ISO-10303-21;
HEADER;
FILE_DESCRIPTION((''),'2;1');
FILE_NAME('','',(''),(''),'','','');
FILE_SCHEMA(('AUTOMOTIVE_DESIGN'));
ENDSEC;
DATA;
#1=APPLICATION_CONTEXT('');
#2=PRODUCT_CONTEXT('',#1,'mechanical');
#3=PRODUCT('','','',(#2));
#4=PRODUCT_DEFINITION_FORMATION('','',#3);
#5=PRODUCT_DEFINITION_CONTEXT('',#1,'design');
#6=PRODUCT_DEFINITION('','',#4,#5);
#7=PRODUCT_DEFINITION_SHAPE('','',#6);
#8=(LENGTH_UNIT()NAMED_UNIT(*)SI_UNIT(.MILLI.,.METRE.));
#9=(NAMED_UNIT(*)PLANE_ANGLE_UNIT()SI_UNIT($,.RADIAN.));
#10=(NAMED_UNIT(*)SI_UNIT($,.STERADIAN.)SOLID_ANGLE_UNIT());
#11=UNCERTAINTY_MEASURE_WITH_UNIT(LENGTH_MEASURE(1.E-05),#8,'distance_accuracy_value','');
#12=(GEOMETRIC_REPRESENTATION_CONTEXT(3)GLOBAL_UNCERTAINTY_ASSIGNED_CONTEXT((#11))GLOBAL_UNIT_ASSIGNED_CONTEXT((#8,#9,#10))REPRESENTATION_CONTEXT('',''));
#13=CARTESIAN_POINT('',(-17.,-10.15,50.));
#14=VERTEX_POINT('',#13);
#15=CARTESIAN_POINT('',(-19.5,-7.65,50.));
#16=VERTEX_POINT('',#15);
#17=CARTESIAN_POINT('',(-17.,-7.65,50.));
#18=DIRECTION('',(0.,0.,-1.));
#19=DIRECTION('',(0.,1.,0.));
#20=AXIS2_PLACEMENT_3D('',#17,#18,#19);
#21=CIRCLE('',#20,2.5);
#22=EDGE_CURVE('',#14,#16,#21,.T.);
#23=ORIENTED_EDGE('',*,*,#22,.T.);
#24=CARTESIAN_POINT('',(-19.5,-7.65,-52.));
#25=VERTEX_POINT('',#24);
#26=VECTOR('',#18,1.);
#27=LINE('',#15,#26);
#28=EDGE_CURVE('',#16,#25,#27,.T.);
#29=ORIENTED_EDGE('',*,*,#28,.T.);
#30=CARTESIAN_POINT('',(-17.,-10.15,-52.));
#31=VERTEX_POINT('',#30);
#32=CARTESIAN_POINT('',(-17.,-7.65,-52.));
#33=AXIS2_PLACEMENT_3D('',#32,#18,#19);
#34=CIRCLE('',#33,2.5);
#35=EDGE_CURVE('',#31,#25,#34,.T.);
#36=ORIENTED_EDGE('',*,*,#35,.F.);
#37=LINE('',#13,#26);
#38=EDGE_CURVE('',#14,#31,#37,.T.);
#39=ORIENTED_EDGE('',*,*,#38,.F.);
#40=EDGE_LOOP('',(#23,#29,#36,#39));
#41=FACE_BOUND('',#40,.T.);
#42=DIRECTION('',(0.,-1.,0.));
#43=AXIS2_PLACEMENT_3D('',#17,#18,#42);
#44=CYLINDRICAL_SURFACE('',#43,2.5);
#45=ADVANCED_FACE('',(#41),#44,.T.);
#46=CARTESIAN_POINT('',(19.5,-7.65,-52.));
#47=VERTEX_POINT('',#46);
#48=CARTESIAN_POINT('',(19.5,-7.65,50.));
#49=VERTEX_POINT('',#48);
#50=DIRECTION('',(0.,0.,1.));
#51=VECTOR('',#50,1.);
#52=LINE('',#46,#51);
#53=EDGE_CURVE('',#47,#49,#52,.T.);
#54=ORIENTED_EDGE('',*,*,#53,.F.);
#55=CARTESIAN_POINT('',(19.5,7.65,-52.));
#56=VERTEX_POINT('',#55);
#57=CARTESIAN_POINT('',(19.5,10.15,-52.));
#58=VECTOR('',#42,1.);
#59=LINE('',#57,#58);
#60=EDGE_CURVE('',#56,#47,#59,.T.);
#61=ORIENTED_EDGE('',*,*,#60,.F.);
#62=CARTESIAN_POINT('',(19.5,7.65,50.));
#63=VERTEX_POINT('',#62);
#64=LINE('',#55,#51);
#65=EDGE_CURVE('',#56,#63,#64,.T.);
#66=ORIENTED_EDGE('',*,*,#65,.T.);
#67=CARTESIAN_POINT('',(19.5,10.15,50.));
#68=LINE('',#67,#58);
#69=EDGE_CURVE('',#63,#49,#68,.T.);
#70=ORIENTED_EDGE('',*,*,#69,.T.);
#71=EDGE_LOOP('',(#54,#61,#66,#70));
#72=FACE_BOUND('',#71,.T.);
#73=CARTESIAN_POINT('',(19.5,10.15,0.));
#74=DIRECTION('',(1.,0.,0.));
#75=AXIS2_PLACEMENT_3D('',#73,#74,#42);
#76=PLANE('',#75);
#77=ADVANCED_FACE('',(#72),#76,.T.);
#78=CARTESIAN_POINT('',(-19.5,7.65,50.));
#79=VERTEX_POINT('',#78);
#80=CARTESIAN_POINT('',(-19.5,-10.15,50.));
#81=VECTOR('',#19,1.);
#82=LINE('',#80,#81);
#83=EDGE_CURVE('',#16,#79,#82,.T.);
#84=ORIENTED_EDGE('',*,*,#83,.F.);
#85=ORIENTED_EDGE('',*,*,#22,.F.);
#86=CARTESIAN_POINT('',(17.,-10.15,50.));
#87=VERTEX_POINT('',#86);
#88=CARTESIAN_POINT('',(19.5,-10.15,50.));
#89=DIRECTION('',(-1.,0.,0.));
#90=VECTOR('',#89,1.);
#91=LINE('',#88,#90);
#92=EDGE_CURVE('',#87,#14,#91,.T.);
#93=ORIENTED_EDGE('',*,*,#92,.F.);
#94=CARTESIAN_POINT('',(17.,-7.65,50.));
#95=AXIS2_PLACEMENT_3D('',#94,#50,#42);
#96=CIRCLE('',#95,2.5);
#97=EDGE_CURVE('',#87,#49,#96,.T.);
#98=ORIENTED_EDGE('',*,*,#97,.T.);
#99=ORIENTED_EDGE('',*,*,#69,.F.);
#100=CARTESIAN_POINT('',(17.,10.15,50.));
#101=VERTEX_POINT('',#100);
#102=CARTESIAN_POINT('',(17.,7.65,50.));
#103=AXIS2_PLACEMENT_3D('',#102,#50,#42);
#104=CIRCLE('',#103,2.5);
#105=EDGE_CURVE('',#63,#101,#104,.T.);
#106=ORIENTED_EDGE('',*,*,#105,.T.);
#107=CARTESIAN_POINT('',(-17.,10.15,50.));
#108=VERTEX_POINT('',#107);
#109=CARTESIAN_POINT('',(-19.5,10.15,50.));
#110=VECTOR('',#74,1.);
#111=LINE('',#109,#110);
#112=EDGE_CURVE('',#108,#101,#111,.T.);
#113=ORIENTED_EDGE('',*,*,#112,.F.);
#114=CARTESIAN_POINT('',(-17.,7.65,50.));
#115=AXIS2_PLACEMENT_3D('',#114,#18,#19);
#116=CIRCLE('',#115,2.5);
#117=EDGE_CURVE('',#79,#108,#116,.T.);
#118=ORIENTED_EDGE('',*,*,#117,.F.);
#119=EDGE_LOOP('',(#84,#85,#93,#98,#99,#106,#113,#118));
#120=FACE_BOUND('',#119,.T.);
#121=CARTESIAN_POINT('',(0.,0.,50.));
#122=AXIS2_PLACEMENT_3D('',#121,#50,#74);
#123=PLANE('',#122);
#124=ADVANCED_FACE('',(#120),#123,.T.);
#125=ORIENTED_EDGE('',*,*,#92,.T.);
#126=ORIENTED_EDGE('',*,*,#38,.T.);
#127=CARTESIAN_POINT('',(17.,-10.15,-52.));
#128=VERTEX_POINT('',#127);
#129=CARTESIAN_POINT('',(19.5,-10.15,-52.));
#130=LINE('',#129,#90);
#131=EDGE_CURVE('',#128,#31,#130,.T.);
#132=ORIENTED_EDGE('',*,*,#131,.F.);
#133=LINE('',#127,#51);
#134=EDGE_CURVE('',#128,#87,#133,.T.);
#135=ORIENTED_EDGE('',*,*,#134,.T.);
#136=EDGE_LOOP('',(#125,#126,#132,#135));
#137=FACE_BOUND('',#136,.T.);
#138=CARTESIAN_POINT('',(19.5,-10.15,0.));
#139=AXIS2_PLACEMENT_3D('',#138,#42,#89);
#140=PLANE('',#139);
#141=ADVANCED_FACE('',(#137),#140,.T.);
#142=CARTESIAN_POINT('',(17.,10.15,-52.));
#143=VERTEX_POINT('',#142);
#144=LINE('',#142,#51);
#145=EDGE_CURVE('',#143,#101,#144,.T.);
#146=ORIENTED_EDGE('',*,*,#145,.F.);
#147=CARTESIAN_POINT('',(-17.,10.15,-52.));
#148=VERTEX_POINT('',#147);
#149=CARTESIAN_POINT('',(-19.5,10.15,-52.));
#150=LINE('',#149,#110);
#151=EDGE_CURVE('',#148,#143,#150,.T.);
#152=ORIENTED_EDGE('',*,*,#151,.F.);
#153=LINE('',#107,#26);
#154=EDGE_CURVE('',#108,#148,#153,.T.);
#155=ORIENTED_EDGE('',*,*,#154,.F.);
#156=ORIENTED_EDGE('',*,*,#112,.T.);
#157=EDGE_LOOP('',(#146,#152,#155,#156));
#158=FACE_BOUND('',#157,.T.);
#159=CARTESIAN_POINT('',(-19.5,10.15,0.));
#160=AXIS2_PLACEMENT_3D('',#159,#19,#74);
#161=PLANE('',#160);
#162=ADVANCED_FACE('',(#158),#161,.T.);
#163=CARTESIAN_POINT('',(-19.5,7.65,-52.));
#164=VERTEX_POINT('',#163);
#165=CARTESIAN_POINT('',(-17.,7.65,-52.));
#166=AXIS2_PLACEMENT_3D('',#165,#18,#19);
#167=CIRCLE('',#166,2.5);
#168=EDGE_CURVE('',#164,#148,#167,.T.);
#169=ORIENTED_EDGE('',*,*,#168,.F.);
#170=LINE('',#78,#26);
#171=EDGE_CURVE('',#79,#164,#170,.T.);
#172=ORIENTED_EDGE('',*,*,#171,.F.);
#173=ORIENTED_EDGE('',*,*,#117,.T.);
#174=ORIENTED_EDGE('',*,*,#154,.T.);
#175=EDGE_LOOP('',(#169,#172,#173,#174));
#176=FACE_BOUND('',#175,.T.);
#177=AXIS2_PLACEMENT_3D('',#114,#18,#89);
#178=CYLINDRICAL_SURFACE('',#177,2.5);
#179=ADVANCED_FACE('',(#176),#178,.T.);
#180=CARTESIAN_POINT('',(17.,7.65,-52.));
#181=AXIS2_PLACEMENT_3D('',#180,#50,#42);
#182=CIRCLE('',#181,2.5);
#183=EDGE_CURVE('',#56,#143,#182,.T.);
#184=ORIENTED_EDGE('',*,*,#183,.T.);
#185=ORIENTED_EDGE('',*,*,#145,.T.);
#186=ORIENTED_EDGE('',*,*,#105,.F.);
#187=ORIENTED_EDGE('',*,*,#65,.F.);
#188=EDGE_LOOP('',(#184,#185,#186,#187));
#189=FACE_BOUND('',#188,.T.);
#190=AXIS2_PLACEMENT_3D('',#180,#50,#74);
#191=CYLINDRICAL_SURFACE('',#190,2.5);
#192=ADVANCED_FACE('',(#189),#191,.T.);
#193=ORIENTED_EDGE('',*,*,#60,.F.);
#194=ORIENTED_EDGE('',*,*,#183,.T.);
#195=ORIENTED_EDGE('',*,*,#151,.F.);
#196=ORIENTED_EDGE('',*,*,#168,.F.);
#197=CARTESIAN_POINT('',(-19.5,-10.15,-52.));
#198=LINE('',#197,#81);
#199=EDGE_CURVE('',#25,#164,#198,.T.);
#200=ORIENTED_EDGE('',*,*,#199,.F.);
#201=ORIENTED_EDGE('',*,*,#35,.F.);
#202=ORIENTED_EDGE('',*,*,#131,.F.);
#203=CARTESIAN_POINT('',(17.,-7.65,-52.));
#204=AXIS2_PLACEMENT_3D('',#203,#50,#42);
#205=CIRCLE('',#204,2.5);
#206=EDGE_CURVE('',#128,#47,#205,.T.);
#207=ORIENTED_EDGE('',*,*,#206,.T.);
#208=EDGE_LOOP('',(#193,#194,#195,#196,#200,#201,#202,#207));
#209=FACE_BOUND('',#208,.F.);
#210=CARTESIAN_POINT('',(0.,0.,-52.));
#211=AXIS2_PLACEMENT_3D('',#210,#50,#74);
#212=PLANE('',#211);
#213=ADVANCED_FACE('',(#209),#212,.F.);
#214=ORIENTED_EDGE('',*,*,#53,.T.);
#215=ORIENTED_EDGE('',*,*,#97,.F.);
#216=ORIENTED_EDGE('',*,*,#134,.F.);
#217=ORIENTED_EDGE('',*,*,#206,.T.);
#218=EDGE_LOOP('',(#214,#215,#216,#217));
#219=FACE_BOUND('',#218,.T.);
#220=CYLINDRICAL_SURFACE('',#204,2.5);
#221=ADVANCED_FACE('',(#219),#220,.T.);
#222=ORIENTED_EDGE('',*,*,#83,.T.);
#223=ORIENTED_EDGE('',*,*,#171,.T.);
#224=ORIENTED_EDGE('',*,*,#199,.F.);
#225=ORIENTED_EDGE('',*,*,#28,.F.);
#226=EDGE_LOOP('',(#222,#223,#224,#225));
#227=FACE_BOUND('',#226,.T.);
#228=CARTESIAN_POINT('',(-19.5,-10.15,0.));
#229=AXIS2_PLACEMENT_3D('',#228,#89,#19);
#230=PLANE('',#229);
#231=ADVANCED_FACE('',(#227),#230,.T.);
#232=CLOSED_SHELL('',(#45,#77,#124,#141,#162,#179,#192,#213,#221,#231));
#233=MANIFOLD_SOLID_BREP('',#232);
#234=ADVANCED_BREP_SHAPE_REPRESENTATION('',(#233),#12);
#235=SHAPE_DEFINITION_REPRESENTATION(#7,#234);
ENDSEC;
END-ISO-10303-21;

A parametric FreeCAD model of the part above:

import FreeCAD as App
import Part
import Sketcher
from FreeCAD import Vector
Q = App.Units.Quantity


def edges_at(feature, points):
    """Names of the edges that pass closest to the given points."""
    edges = feature.Shape.Edges
    near = lambda p: min(range(len(edges)), key=lambda i: edges[i].distToShape(Part.Vertex(*p))[0])
    return sorted({f"Edge{near(p) + 1}" for p in points})


def add_polygon(sketch, points):
    """Adds a closed chain of lines whose ends are joined by coincident constraints."""
    first, n = sketch.GeometryCount, len(points)
    for a, b in zip(points, points[1:] + points[:1]):
        sketch.addGeometry(Part.LineSegment(App.Vector(*a, 0), App.Vector(*b, 0)), False)
    for i in range(n):
        sketch.addConstraint(Sketcher.Constraint("Coincident", first + i, 2, first + (i + 1) % n, 1))

doc = App.newDocument("Part")
body = doc.addObject("PartDesign::Body", "Body")

sketch1 = body.newObject("Sketcher::SketchObject", "Sketch")
sketch1.AttachmentSupport = (doc.getObject("XY_Plane"), [""])
sketch1.MapMode = "FlatFace"
add_polygon(sketch1, [(-20, -10), (20, -10), (20, 10), (-20, 10)])
sketch1.addConstraint([
    Sketcher.Constraint("Horizontal", 0),
    Sketcher.Constraint("Vertical", 1),
    Sketcher.Constraint("Horizontal", 2),
    Sketcher.Constraint("Vertical", 3),
    Sketcher.Constraint("Symmetric", 0, 2, 2, 2, -1, 1),
    Sketcher.Constraint("DistanceX", 0, 1, 0, 2, Q("39 mm")),
    Sketcher.Constraint("DistanceY", 1, 1, 1, 2, Q("20.3 mm")),
])
pad1 = body.newObject("PartDesign::Pad", "Pad")
pad1.Profile = sketch1
pad1.Type = "TwoLengths"
pad1.Length = 50
pad1.Length2 = 52
doc.recompute()

fillet = body.newObject("PartDesign::Fillet", "Fillet")
fillet.Base = (pad1, edges_at(pad1, [
    (19.5, -10.15, -1),
    (-19.5, -10.15, -1),
    (19.5, 10.15, -1),
    (-19.5, 10.15, -1),
]))
fillet.Radius = 2.5

doc.recompute()
